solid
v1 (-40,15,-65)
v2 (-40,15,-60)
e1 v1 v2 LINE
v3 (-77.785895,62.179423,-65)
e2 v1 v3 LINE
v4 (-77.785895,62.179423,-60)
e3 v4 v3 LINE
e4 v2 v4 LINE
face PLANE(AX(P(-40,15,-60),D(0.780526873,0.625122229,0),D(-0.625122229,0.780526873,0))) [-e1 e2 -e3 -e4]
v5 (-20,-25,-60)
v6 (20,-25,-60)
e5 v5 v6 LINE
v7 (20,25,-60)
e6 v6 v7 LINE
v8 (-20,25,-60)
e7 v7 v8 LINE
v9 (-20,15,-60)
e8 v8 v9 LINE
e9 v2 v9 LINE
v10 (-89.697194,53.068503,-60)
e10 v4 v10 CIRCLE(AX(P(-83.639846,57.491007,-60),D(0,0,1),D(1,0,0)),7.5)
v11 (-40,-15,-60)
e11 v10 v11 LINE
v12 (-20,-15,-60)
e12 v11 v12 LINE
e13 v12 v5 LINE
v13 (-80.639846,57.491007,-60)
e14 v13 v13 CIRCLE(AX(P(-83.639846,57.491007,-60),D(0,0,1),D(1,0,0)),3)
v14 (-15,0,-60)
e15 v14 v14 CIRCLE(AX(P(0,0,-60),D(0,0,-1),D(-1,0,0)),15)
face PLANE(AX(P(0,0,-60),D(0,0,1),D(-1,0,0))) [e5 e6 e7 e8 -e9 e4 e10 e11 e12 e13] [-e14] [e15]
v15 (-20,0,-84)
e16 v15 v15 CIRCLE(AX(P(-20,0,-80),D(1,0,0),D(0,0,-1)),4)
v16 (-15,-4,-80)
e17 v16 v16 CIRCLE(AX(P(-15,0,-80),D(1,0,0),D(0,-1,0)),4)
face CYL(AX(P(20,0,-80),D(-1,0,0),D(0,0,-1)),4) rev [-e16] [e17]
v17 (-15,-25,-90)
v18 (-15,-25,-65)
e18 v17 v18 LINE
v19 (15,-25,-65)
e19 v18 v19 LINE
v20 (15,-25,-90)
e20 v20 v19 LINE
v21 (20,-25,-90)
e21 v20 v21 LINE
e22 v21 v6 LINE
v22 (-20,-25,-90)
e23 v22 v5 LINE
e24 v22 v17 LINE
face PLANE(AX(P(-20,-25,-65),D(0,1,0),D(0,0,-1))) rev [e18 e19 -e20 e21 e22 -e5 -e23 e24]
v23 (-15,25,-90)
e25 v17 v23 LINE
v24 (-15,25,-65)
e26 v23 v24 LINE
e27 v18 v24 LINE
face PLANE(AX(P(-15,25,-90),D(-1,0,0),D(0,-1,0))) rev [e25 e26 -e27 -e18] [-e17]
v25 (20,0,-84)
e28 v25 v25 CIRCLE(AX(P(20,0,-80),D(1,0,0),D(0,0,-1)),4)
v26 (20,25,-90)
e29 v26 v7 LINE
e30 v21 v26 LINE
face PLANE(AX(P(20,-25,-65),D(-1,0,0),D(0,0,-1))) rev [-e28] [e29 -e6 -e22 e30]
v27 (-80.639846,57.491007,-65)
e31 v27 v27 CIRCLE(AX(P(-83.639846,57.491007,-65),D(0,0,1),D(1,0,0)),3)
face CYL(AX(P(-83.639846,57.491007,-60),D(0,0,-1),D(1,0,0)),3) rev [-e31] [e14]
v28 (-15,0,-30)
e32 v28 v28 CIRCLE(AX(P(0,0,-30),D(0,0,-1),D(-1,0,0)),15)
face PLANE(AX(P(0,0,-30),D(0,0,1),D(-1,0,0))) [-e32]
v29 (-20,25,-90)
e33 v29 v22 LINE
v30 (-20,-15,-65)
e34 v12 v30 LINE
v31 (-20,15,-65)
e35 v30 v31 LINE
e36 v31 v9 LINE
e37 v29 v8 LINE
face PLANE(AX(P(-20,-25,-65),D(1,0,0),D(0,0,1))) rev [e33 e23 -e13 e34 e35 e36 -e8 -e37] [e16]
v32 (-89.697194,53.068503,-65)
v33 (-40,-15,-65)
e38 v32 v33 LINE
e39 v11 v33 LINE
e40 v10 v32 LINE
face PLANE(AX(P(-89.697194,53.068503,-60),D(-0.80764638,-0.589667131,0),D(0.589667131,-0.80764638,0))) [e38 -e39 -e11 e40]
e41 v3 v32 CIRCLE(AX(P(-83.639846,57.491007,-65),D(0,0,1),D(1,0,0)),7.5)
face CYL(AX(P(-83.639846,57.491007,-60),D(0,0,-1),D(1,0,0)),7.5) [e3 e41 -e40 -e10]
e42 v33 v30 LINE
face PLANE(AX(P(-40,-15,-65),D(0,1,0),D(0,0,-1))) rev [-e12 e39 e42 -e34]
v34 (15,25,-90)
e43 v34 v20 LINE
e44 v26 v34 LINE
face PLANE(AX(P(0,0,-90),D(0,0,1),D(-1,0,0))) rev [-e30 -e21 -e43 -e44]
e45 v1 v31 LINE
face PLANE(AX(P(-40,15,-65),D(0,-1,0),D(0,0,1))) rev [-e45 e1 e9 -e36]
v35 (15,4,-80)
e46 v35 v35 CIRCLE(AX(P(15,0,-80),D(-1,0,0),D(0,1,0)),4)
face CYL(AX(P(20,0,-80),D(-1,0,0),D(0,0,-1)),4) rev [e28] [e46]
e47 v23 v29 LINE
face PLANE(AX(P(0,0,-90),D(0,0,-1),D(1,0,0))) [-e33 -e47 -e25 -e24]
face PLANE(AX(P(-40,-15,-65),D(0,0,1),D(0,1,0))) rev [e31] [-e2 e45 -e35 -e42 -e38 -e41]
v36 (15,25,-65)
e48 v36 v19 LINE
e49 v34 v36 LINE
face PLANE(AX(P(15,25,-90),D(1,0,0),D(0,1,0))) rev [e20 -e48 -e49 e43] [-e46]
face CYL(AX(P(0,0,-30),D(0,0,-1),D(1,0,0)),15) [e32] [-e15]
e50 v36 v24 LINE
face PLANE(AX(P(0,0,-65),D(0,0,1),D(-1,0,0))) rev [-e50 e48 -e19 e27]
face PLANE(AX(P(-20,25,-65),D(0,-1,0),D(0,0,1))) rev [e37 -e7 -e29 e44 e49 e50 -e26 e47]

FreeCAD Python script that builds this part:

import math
import FreeCAD as App
import Part
import Sketcher

doc = App.newDocument("Part")
body = doc.addObject("PartDesign::Body", "Body")

# Sketch on XY plane
sketch1 = body.newObject("Sketcher::SketchObject", "Sketch")
sketch1.AttachmentSupport = (doc.getObject("XY_Plane"), [""])
sketch1.MapMode = "FlatFace"
sketch1.addGeometry(Part.LineSegment(App.Vector(-20, 25, 0), App.Vector(-20, -25, 0)), False)
sketch1.addGeometry(Part.LineSegment(App.Vector(-20, -25, 0), App.Vector(20, -25, 0)), False)
sketch1.addGeometry(Part.LineSegment(App.Vector(20, -25, 0), App.Vector(20, 25, 0)), False)
sketch1.addGeometry(Part.LineSegment(App.Vector(20, 25, 0), App.Vector(-20, 25, 0)), False)
sketch1.addConstraint(Sketcher.Constraint("Coincident", 0, 2, 1, 1))
sketch1.addConstraint(Sketcher.Constraint("Coincident", 1, 2, 2, 1))
sketch1.addConstraint(Sketcher.Constraint("Coincident", 2, 2, 3, 1))
sketch1.addConstraint(Sketcher.Constraint("Coincident", 3, 2, 0, 1))
sketch1.addConstraint(Sketcher.Constraint("Vertical", 0))
sketch1.addConstraint(Sketcher.Constraint("Horizontal", 1))
sketch1.addConstraint(Sketcher.Constraint("Vertical", 2))
sketch1.addConstraint(Sketcher.Constraint("Horizontal", 3))
sketch1.addConstraint(Sketcher.Constraint("Symmetric", 0, 2, 2, 2, -1, 1))
sketch1.addConstraint(Sketcher.Constraint("DistanceX", 1, 1, 1, 2, 40.0))
sketch1.addConstraint(Sketcher.Constraint("DistanceY", 0, 2, 0, 1, 50.0))
pad1 = body.newObject("PartDesign::Pad", "Pad")
pad1.Profile = sketch1
pad1.Length = 5

# Sketch on XY plane
sketch2 = body.newObject("Sketcher::SketchObject", "Sketch001")
sketch2.AttachmentSupport = (doc.getObject("XY_Plane"), [""])
sketch2.MapMode = "FlatFace"
sketch2.AttachmentOffset = App.Placement(App.Vector(0, 0, 5), App.Rotation())
sketch2.addGeometry(Part.LineSegment(App.Vector(-20, 25, 0), App.Vector(-20, -25, 0)), False)
sketch2.addGeometry(Part.LineSegment(App.Vector(-20, -25, 0), App.Vector(-15, -25, 0)), False)
sketch2.addGeometry(Part.LineSegment(App.Vector(-15, -25, 0), App.Vector(-15, 25, 0)), False)
sketch2.addGeometry(Part.LineSegment(App.Vector(-15, 25, 0), App.Vector(-20, 25, 0)), False)
sketch2.addGeometry(Part.LineSegment(App.Vector(15, 25, 0), App.Vector(15, -25, 0)), False)
sketch2.addGeometry(Part.LineSegment(App.Vector(15, -25, 0), App.Vector(20, -25, 0)), False)
sketch2.addGeometry(Part.LineSegment(App.Vector(20, -25, 0), App.Vector(20, 25, 0)), False)
sketch2.addGeometry(Part.LineSegment(App.Vector(20, 25, 0), App.Vector(15, 25, 0)), False)
sketch2.addConstraint(Sketcher.Constraint("Coincident", 0, 2, 1, 1))
sketch2.addConstraint(Sketcher.Constraint("Coincident", 1, 2, 2, 1))
sketch2.addConstraint(Sketcher.Constraint("Coincident", 2, 2, 3, 1))
sketch2.addConstraint(Sketcher.Constraint("Coincident", 3, 2, 0, 1))
sketch2.addConstraint(Sketcher.Constraint("Coincident", 4, 2, 5, 1))
sketch2.addConstraint(Sketcher.Constraint("Coincident", 5, 2, 6, 1))
sketch2.addConstraint(Sketcher.Constraint("Coincident", 6, 2, 7, 1))
sketch2.addConstraint(Sketcher.Constraint("Coincident", 7, 2, 4, 1))
sketch2.addConstraint(Sketcher.Constraint("Vertical", 0))
sketch2.addConstraint(Sketcher.Constraint("Horizontal", 1))
sketch2.addConstraint(Sketcher.Constraint("Vertical", 2))
sketch2.addConstraint(Sketcher.Constraint("Horizontal", 3))
sketch2.addConstraint(Sketcher.Constraint("Vertical", 4))
sketch2.addConstraint(Sketcher.Constraint("Horizontal", 5))
sketch2.addConstraint(Sketcher.Constraint("Vertical", 6))
sketch2.addConstraint(Sketcher.Constraint("Horizontal", 7))
sketch2.addConstraint(Sketcher.Constraint("Symmetric", 2, 2, 4, 2, -1, 1))
sketch2.addConstraint(Sketcher.Constraint("Symmetric", 0, 2, 6, 2, -1, 1))
sketch2.addConstraint(Sketcher.Constraint("Horizontal", 1, 2, 4, 2))
sketch2.addConstraint(Sketcher.Constraint("DistanceX", 1, 1, 1, 2, 5.0))
sketch2.addConstraint(Sketcher.Constraint("DistanceY", 0, 2, 0, 1, 50.0))
sketch2.addConstraint(Sketcher.Constraint("DistanceX", 0, 2, -1, 1, 20.0))
pad2 = body.newObject("PartDesign::Pad", "Pad001")
pad2.Profile = sketch2
pad2.Length = 25

# Sketch on YZ plane
sketch3 = body.newObject("Sketcher::SketchObject", "Sketch002")
sketch3.AttachmentSupport = (doc.getObject("YZ_Plane"), [""])
sketch3.MapMode = "FlatFace"
sketch3.AttachmentOffset = App.Placement(App.Vector(0, 0, -20), App.Rotation())
sketch3.addGeometry(Part.Circle(App.Vector(0, 20, 0), App.Vector(0, 0, 1), 4), False)
sketch3.addConstraint(Sketcher.Constraint("PointOnObject", 0, 3, -2))
sketch3.addConstraint(Sketcher.Constraint("Diameter", 0, 8.0))
sketch3.addConstraint(Sketcher.Constraint("DistanceY", -1, 1, 0, 3, 20.0))
pocket1 = body.newObject("PartDesign::Pocket", "Pocket")
pocket1.Profile = sketch3
pocket1.Type = "ThroughAll"
pocket1.Reversed = True

# Sketch on YZ plane
sketch4 = body.newObject("Sketcher::SketchObject", "Sketch003")
sketch4.AttachmentSupport = (doc.getObject("YZ_Plane"), [""])
sketch4.MapMode = "FlatFace"
sketch4.AttachmentOffset = App.Placement(App.Vector(0, 0, -20), App.Rotation())
sketch4.addGeometry(Part.LineSegment(App.Vector(15, 0, 0), App.Vector(-15, 0, 0)), False)
sketch4.addGeometry(Part.LineSegment(App.Vector(-15, 0, 0), App.Vector(-15, 5, 0)), False)
sketch4.addGeometry(Part.LineSegment(App.Vector(-15, 5, 0), App.Vector(15, 5, 0)), False)
sketch4.addGeometry(Part.LineSegment(App.Vector(15, 5, 0), App.Vector(15, 0, 0)), False)
sketch4.addConstraint(Sketcher.Constraint("Coincident", 0, 2, 1, 1))
sketch4.addConstraint(Sketcher.Constraint("Coincident", 1, 2, 2, 1))
sketch4.addConstraint(Sketcher.Constraint("Coincident", 2, 2, 3, 1))
sketch4.addConstraint(Sketcher.Constraint("Coincident", 3, 2, 0, 1))
sketch4.addConstraint(Sketcher.Constraint("Horizontal", 0))
sketch4.addConstraint(Sketcher.Constraint("Vertical", 1))
sketch4.addConstraint(Sketcher.Constraint("Horizontal", 2))
sketch4.addConstraint(Sketcher.Constraint("Vertical", 3))
sketch4.addConstraint(Sketcher.Constraint("Symmetric", 0, 2, 3, 2, -1, 1))
sketch4.addConstraint(Sketcher.Constraint("DistanceX", 0, 2, 0, 1, 30.0))
sketch4.addConstraint(Sketcher.Constraint("DistanceY", 1, 1, 1, 2, 5.0))
pad3 = body.newObject("PartDesign::Pad", "Pad002")
pad3.Profile = sketch4
pad3.Length = 20
pad3.Reversed = True

# Sketch on XY plane
sketch5 = body.newObject("Sketcher::SketchObject", "Sketch004")
sketch5.AttachmentSupport = (doc.getObject("XY_Plane"), [""])
sketch5.MapMode = "FlatFace"
sketch5.AttachmentOffset = App.Placement(App.Vector(0, 0, 5), App.Rotation())
sketch5.addGeometry(Part.LineSegment(App.Vector(-40, 15, 0), App.Vector(-77.8, 62.2, 0)), False)
sketch5.addGeometry(Part.ArcOfCircle(Part.Circle(App.Vector(-83.6, 57.5, 0), App.Vector(0, 0, 1), 7.5), math.radians(39), math.radians(216)), False)
sketch5.addGeometry(Part.LineSegment(App.Vector(-89.7, 53.1, 0), App.Vector(-40, -15, 0)), False)
sketch5.addGeometry(Part.LineSegment(App.Vector(-40, -15, 0), App.Vector(-40, 15, 0)), False)
sketch5.addGeometry(Part.Circle(App.Vector(-83.6, 57.5, 0), App.Vector(0, 0, 1), 3), False)
sketch5.addConstraint(Sketcher.Constraint("Tangent", 0, 2, 1, 1))
sketch5.addConstraint(Sketcher.Constraint("Tangent", 1, 2, 2, 1))
sketch5.addConstraint(Sketcher.Constraint("Coincident", 2, 2, 3, 1))
sketch5.addConstraint(Sketcher.Constraint("Coincident", 3, 2, 0, 1))
sketch5.addConstraint(Sketcher.Constraint("Vertical", 3))
sketch5.addConstraint(Sketcher.Constraint("Coincident", 4, 3, 1, 3))
sketch5.addConstraint(Sketcher.Constraint("Diameter", 4, 6.0))
sketch5.addConstraint(Sketcher.Constraint("Radius", 1, 7.5))
sketch5.addConstraint(Sketcher.Constraint("DistanceY", 3, 1, 3, 2, 30.0))
sketch5.addConstraint(Sketcher.Constraint("DistanceX", 2, 2, -1, 1, 40.0))
sketch5.addConstraint(Sketcher.Constraint("DistanceY", 2, 2, -1, 1, 15.0))
sketch5.addConstraint(Sketcher.Constraint("DistanceX", 1, 2, 0, 2, 11.911299))
sketch5.addConstraint(Sketcher.Constraint("Distance", 0, 60.44561))
pad4 = body.newObject("PartDesign::Pad", "Pad003")
pad4.Profile = sketch5
pad4.Length = 5
pad4.Reversed = True

# Sketch on XY plane
sketch6 = body.newObject("Sketcher::SketchObject", "Sketch005")
sketch6.AttachmentSupport = (doc.getObject("XY_Plane"), [""])
sketch6.MapMode = "FlatFace"
sketch6.addGeometry(Part.Circle(App.Vector(0, 0, 0), App.Vector(0, 0, 1), 15), False)
sketch6.addConstraint(Sketcher.Constraint("Coincident", 0, 3, -1, 1))
sketch6.addConstraint(Sketcher.Constraint("Diameter", 0, 30.0))
pad5 = body.newObject("PartDesign::Pad", "Pad004")
pad5.Profile = sketch6
pad5.Length = 30
pad5.Reversed = True
body2 = doc.addObject("PartDesign::Body", "Body001")
doc.recompute()

mirroring = doc.addObject("Part::Mirroring", "Mirroring")
mirroring.Source = body
mirroring.Base = App.Vector(0, 0, -30)
mirroring.Normal = App.Vector(0, 0, -1)
body2.BaseFeature = mirroring
doc.recompute()
body.Visibility = False
mirroring.Visibility = False

doc.recompute()
